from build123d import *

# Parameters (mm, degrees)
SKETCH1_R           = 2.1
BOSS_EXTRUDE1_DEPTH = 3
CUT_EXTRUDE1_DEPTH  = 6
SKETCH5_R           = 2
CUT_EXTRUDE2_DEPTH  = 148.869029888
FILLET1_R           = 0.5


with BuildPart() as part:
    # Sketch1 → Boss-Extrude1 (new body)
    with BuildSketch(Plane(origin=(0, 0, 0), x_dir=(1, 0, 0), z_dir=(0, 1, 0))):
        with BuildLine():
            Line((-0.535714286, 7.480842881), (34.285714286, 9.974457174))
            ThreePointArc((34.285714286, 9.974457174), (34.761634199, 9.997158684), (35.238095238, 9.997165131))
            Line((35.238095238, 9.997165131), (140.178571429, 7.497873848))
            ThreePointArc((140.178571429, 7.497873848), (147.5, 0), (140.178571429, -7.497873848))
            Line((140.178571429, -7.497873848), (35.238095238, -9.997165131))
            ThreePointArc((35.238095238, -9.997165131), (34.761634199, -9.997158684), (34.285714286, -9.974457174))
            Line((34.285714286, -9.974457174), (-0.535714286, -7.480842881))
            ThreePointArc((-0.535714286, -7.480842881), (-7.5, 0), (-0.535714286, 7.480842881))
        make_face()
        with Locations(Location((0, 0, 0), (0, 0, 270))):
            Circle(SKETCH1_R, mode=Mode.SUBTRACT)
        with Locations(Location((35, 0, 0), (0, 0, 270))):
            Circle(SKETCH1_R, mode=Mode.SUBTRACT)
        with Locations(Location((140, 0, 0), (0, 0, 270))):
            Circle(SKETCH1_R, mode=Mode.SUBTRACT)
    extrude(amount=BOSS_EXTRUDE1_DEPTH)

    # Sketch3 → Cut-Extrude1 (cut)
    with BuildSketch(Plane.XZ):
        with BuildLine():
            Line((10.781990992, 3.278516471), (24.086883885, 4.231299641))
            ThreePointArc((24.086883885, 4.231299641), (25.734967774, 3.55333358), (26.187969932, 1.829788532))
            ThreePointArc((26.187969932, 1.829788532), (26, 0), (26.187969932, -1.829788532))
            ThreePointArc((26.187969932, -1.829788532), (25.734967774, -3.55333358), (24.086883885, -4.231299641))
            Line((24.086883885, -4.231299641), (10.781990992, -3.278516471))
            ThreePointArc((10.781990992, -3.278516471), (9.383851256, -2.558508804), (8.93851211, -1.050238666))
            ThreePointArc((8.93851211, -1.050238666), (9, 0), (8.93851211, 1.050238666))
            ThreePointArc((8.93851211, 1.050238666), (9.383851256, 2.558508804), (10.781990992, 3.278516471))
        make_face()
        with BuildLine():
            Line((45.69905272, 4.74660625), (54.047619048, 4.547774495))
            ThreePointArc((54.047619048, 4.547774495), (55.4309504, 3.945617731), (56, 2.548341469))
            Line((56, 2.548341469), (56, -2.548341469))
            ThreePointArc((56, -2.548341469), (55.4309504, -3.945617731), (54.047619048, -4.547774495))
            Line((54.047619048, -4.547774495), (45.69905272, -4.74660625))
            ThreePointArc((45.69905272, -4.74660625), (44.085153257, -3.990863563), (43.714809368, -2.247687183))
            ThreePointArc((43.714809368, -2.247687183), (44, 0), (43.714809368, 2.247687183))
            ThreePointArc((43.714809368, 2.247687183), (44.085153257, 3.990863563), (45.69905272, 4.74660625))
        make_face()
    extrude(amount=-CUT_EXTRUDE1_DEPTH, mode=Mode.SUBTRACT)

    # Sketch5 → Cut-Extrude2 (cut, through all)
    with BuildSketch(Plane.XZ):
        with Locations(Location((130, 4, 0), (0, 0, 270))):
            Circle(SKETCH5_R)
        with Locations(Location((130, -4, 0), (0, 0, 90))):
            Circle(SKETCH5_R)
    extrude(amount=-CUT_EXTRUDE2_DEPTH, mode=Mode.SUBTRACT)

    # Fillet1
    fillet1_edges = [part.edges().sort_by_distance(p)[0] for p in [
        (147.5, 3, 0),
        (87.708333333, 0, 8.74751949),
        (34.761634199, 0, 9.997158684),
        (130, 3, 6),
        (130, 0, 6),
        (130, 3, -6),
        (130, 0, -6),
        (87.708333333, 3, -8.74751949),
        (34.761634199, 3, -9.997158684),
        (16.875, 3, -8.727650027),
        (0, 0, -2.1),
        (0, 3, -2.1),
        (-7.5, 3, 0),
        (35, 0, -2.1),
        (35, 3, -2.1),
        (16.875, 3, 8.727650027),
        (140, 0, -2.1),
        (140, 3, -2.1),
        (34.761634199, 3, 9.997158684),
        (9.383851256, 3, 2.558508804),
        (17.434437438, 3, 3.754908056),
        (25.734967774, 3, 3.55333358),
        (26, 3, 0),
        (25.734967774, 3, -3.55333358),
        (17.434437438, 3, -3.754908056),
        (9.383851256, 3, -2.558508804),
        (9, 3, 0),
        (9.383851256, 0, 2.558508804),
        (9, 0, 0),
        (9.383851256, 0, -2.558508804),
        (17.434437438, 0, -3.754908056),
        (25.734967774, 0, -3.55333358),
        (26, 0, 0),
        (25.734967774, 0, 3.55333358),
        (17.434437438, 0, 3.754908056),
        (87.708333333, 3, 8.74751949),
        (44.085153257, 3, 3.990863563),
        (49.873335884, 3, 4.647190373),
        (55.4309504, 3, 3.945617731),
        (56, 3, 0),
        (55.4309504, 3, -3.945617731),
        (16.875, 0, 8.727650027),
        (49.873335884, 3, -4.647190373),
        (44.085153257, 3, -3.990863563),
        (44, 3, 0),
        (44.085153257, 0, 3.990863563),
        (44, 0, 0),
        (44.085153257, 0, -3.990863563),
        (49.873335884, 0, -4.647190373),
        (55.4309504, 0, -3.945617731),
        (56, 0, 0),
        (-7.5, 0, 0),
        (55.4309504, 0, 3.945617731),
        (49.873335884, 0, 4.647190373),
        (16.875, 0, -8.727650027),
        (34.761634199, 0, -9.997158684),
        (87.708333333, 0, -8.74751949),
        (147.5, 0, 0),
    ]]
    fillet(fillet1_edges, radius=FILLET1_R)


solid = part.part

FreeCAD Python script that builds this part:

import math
import FreeCAD as App
import Part
import Sketcher


def edges_at(feature, points):
    """Names of the edges that pass closest to the given points."""
    edges = feature.Shape.Edges
    near = lambda p: min(range(len(edges)), key=lambda i: edges[i].distToShape(Part.Vertex(*p))[0])
    return sorted({f"Edge{near(p) + 1}" for p in points})

doc = App.newDocument("Part")
body = doc.addObject("PartDesign::Body", "Body")

sketch1 = body.newObject("Sketcher::SketchObject", "Sketch")
sketch1.AttachmentSupport = (doc.getObject("XZ_Plane"), [""])
sketch1.MapMode = "FlatFace"
sketch1.addGeometry(Part.LineSegment(App.Vector(34.3, -10, 0), App.Vector(-0.5, -7.5, 0)), False)
sketch1.addGeometry(Part.ArcOfCircle(Part.Circle(App.Vector(0, 0, 0), App.Vector(0, 0, 1), 7.5), math.radians(94), math.radians(266)), False)
sketch1.addGeometry(Part.LineSegment(App.Vector(-0.5, 7.5, 0), App.Vector(34.3, 10, 0)), False)
sketch1.addGeometry(Part.ArcOfCircle(Part.Circle(App.Vector(35, 0, 0), App.Vector(0, 0, 1), 10), math.radians(88.64), math.radians(94.1)), False)
sketch1.addGeometry(Part.LineSegment(App.Vector(35.2, 10, 0), App.Vector(140.2, 7.5, 0)), False)
sketch1.addGeometry(Part.ArcOfCircle(Part.Circle(App.Vector(140, 0, 0), App.Vector(0, 0, 1), 7.5), math.radians(-89), math.radians(89)), False)
sketch1.addGeometry(Part.LineSegment(App.Vector(140.2, -7.5, 0), App.Vector(35.2, -10, 0)), False)
sketch1.addGeometry(Part.ArcOfCircle(Part.Circle(App.Vector(35, 0, 0), App.Vector(0, 0, 1), 10), math.radians(-94.1), math.radians(-88.64)), False)
sketch1.addGeometry(Part.Circle(App.Vector(140, 0, 0), App.Vector(0, 0, 1), 2.1), False)
sketch1.addGeometry(Part.Circle(App.Vector(35, 0, 0), App.Vector(0, 0, 1), 2.1), False)
sketch1.addGeometry(Part.Circle(App.Vector(0, 0, 0), App.Vector(0, 0, 1), 2.1), False)
sketch1.addConstraint(Sketcher.Constraint("Tangent", 0, 2, 1, 2))
sketch1.addConstraint(Sketcher.Constraint("Tangent", 1, 1, 2, 1))
sketch1.addConstraint(Sketcher.Constraint("Tangent", 2, 2, 3, 2))
sketch1.addConstraint(Sketcher.Constraint("Tangent", 3, 1, 4, 1))
sketch1.addConstraint(Sketcher.Constraint("Tangent", 4, 2, 5, 2))
sketch1.addConstraint(Sketcher.Constraint("Tangent", 5, 1, 6, 1))
sketch1.addConstraint(Sketcher.Constraint("Tangent", 6, 2, 7, 2))
sketch1.addConstraint(Sketcher.Constraint("Tangent", 7, 1, 0, 1))
sketch1.addConstraint(Sketcher.Constraint("Coincident", 1, 3, -1, 1))
sketch1.addConstraint(Sketcher.Constraint("Coincident", 10, 3, -1, 1))
sketch1.addConstraint(Sketcher.Constraint("Coincident", 7, 3, 3, 3))
sketch1.addConstraint(Sketcher.Constraint("Coincident", 8, 3, 5, 3))
sketch1.addConstraint(Sketcher.Constraint("Coincident", 9, 3, 3, 3))
sketch1.addConstraint(Sketcher.Constraint("Equal", 1, 5))
sketch1.addConstraint(Sketcher.Constraint("Equal", 3, 7))
sketch1.addConstraint(Sketcher.Constraint("Equal", 8, 9))
sketch1.addConstraint(Sketcher.Constraint("Equal", 9, 10))
sketch1.addConstraint(Sketcher.Constraint("Symmetric", 4, 2, 5, 1, -1))
sketch1.addConstraint(Sketcher.Constraint("Radius", 3, 10.0))
sketch1.addConstraint(Sketcher.Constraint("Diameter", 8, 4.2))
sketch1.addConstraint(Sketcher.Constraint("Radius", 1, 7.5))
sketch1.addConstraint(Sketcher.Constraint("DistanceX", -1, 1, 3, 3, 35.0))
sketch1.addConstraint(Sketcher.Constraint("DistanceX", -1, 1, 5, 3, 140.0))
pad1 = body.newObject("PartDesign::Pad", "Pad")
pad1.Profile = sketch1
pad1.Length = 3
pad1.Reversed = True

sketch2 = body.newObject("Sketcher::SketchObject", "Sketch001")
sketch2.AttachmentSupport = (doc.getObject("XZ_Plane"), [""])
sketch2.MapMode = "FlatFace"
sketch2.addGeometry(Part.LineSegment(App.Vector(24.1, 4.2, 0), App.Vector(10.8, 3.3, 0)), False)
sketch2.addGeometry(Part.ArcOfCircle(Part.Circle(App.Vector(10.9, 1.3, 0), App.Vector(0, 0, 1), 2), math.radians(94), math.radians(187)), False)
sketch2.addGeometry(Part.ArcOfCircle(Part.Circle(App.Vector(0, 0, 0), App.Vector(0, 0, 1), 9), math.radians(-6.7), math.radians(6.7)), False)
sketch2.addGeometry(Part.ArcOfCircle(Part.Circle(App.Vector(10.9, -1.3, 0), App.Vector(0, 0, 1), 2), math.radians(173), math.radians(266)), False)
sketch2.addGeometry(Part.LineSegment(App.Vector(10.8, -3.3, 0), App.Vector(24.1, -4.2, 0)), False)
sketch2.addGeometry(Part.ArcOfCircle(Part.Circle(App.Vector(24.2, -2.2, 0), App.Vector(0, 0, 1), 2), math.radians(-94), math.radians(12)), False)
sketch2.addGeometry(Part.ArcOfCircle(Part.Circle(App.Vector(35, 0, 0), App.Vector(0, 0, 1), 9), math.radians(168), math.radians(192)), False)
sketch2.addGeometry(Part.ArcOfCircle(Part.Circle(App.Vector(24.2, 2.2, 0), App.Vector(0, 0, 1), 2), math.radians(-12), math.radians(94)), False)
sketch2.addGeometry(Part.LineSegment(App.Vector(54, 4.5, 0), App.Vector(45.7, 4.7, 0)), False)
sketch2.addGeometry(Part.ArcOfCircle(Part.Circle(App.Vector(45.7, 2.7, 0), App.Vector(0, 0, 1), 2), math.radians(89), math.radians(194)), False)
sketch2.addGeometry(Part.ArcOfCircle(Part.Circle(App.Vector(35, 0, 0), App.Vector(0, 0, 1), 9), math.radians(-14), math.radians(14)), False)
sketch2.addGeometry(Part.ArcOfCircle(Part.Circle(App.Vector(45.7, -2.7, 0), App.Vector(0, 0, 1), 2), math.radians(166), math.radians(271)), False)
sketch2.addGeometry(Part.LineSegment(App.Vector(45.7, -4.7, 0), App.Vector(54, -4.5, 0)), False)
sketch2.addGeometry(Part.ArcOfCircle(Part.Circle(App.Vector(54, -2.5, 0), App.Vector(0, 0, 1), 2), math.radians(-89), math.radians(0)), False)
sketch2.addGeometry(Part.LineSegment(App.Vector(56, -2.5, 0), App.Vector(56, 2.5, 0)), False)
sketch2.addGeometry(Part.ArcOfCircle(Part.Circle(App.Vector(54, 2.5, 0), App.Vector(0, 0, 1), 2), math.radians(0), math.radians(89)), False)
sketch2.addConstraint(Sketcher.Constraint("Tangent", 0, 2, 1, 1))
sketch2.addConstraint(Sketcher.Constraint("Tangent", 1, 2, 2, 2))
sketch2.addConstraint(Sketcher.Constraint("Tangent", 2, 1, 3, 1))
sketch2.addConstraint(Sketcher.Constraint("Tangent", 3, 2, 4, 1))
sketch2.addConstraint(Sketcher.Constraint("Tangent", 4, 2, 5, 1))
sketch2.addConstraint(Sketcher.Constraint("Tangent", 5, 2, 6, 2))
sketch2.addConstraint(Sketcher.Constraint("Tangent", 6, 1, 7, 1))
sketch2.addConstraint(Sketcher.Constraint("Tangent", 7, 2, 0, 1))
sketch2.addConstraint(Sketcher.Constraint("Tangent", 8, 2, 9, 1))
sketch2.addConstraint(Sketcher.Constraint("Tangent", 9, 2, 10, 2))
sketch2.addConstraint(Sketcher.Constraint("Tangent", 10, 1, 11, 1))
sketch2.addConstraint(Sketcher.Constraint("Tangent", 11, 2, 12, 1))
sketch2.addConstraint(Sketcher.Constraint("Tangent", 12, 2, 13, 1))
sketch2.addConstraint(Sketcher.Constraint("Tangent", 13, 2, 14, 1))
sketch2.addConstraint(Sketcher.Constraint("Tangent", 14, 2, 15, 1))
sketch2.addConstraint(Sketcher.Constraint("Tangent", 15, 2, 8, 1))
sketch2.addConstraint(Sketcher.Constraint("Vertical", 14))
sketch2.addConstraint(Sketcher.Constraint("Coincident", 2, 3, -1, 1))
sketch2.addConstraint(Sketcher.Constraint("Coincident", 10, 3, 6, 3))
sketch2.addConstraint(Sketcher.Constraint("Equal", 1, 3))
sketch2.addConstraint(Sketcher.Constraint("Equal", 3, 5))
sketch2.addConstraint(Sketcher.Constraint("Equal", 2, 6))
sketch2.addConstraint(Sketcher.Constraint("Equal", 5, 7))
sketch2.addConstraint(Sketcher.Constraint("Equal", 7, 9))
sketch2.addConstraint(Sketcher.Constraint("Equal", 6, 10))
sketch2.addConstraint(Sketcher.Constraint("Equal", 9, 11))
sketch2.addConstraint(Sketcher.Constraint("Equal", 11, 13))
sketch2.addConstraint(Sketcher.Constraint("Equal", 13, 15))
sketch2.addConstraint(Sketcher.Constraint("Symmetric", 5, 3, 7, 3, -1))
sketch2.addConstraint(Sketcher.Constraint("Symmetric", 8, 2, 11, 2, -1))
sketch2.addConstraint(Sketcher.Constraint("Vertical", 1, 3, 3, 3))
sketch2.addConstraint(Sketcher.Constraint("Radius", 1, 2.0))
sketch2.addConstraint(Sketcher.Constraint("Radius", 2, 9.0))
sketch2.addConstraint(Sketcher.Constraint("DistanceX", -1, 1, 6, 3, 35.0))
sketch2.addConstraint(Sketcher.Constraint("DistanceX", -1, 1, 13, 3, 54.0))
sketch2.addConstraint(Sketcher.Constraint("DistanceY", 4, 2, -1, 1, 4.2313))
sketch2.addConstraint(Sketcher.Constraint("DistanceY", 3, 3, 9, 3, 4.030798))
sketch2.addConstraint(Sketcher.Constraint("DistanceY", 12, 2, 11, 3, 1.800601))
sketch2.addConstraint(Sketcher.Constraint("DistanceY", 14, 1, 14, 2, 5.096683))
pocket1 = body.newObject("PartDesign::Pocket", "Pocket")
pocket1.Profile = sketch2
pocket1.Length = 6

sketch3 = body.newObject("Sketcher::SketchObject", "Sketch002")
sketch3.AttachmentSupport = (doc.getObject("XZ_Plane"), [""])
sketch3.MapMode = "FlatFace"
sketch3.addGeometry(Part.Circle(App.Vector(130, 4, 0), App.Vector(0, 0, 1), 2), False)
sketch3.addGeometry(Part.Circle(App.Vector(130, -4, 0), App.Vector(0, 0, 1), 2), False)
sketch3.addConstraint(Sketcher.Constraint("Equal", 0, 1))
sketch3.addConstraint(Sketcher.Constraint("Symmetric", 0, 3, 1, 3, -1))
sketch3.addConstraint(Sketcher.Constraint("Diameter", 0, 4.0))
sketch3.addConstraint(Sketcher.Constraint("DistanceX", -1, 1, 0, 3, 130.0))
sketch3.addConstraint(Sketcher.Constraint("DistanceY", -1, 1, 0, 3, 4.0))
pocket2 = body.newObject("PartDesign::Pocket", "Pocket001")
pocket2.Profile = sketch3
pocket2.Type = "ThroughAll"
doc.recompute()

fillet = body.newObject("PartDesign::Fillet", "Fillet")
fillet.Base = (pocket2, edges_at(pocket2, [
    (147.5, 3, 0),
    (87.708, 0, 8.748),
    (34.762, 0, 9.997),
    (130, 3, 6),
    (130, 0, 6),
    (130, 3, -6),
    (130, 0, -6),
    (87.708, 3, -8.748),
    (34.762, 3, -9.997),
    (16.875, 3, -8.728),
    (0, 0, -2.1),
    (0, 3, -2.1),
    (-7.5, 3, 0),
    (35, 0, -2.1),
    (35, 3, -2.1),
    (16.875, 3, 8.728),
    (140, 0, -2.1),
    (140, 3, -2.1),
    (34.762, 3, 9.997),
    (9.384, 3, 2.559),
    (17.434, 3, 3.755),
    (25.735, 3, 3.553),
    (26, 3, 0),
    (25.735, 3, -3.553),
    (17.434, 3, -3.755),
    (9.384, 3, -2.559),
    (9, 3, 0),
    (9.384, 0, 2.559),
    (9, 0, 0),
    (9.384, 0, -2.559),
    (17.434, 0, -3.755),
    (25.735, 0, -3.553),
    (26, 0, 0),
    (25.735, 0, 3.553),
    (17.434, 0, 3.755),
    (87.708, 3, 8.748),
    (44.085, 3, 3.991),
    (49.873, 3, 4.647),
    (55.431, 3, 3.946),
    (56, 3, 0),
    (55.431, 3, -3.946),
    (16.875, 0, 8.728),
    (49.873, 3, -4.647),
    (44.085, 3, -3.991),
    (44, 3, 0),
    (44.085, 0, 3.991),
    (44, 0, 0),
    (44.085, 0, -3.991),
    (49.873, 0, -4.647),
    (55.431, 0, -3.946),
    (56, 0, 0),
    (-7.5, 0, 0),
    (55.431, 0, 3.946),
    (49.873, 0, 4.647),
    (16.875, 0, -8.728),
    (34.762, 0, -9.997),
    (87.708, 0, -8.748),
    (147.5, 0, 0),
]))
fillet.Radius = 0.5

doc.recompute()
